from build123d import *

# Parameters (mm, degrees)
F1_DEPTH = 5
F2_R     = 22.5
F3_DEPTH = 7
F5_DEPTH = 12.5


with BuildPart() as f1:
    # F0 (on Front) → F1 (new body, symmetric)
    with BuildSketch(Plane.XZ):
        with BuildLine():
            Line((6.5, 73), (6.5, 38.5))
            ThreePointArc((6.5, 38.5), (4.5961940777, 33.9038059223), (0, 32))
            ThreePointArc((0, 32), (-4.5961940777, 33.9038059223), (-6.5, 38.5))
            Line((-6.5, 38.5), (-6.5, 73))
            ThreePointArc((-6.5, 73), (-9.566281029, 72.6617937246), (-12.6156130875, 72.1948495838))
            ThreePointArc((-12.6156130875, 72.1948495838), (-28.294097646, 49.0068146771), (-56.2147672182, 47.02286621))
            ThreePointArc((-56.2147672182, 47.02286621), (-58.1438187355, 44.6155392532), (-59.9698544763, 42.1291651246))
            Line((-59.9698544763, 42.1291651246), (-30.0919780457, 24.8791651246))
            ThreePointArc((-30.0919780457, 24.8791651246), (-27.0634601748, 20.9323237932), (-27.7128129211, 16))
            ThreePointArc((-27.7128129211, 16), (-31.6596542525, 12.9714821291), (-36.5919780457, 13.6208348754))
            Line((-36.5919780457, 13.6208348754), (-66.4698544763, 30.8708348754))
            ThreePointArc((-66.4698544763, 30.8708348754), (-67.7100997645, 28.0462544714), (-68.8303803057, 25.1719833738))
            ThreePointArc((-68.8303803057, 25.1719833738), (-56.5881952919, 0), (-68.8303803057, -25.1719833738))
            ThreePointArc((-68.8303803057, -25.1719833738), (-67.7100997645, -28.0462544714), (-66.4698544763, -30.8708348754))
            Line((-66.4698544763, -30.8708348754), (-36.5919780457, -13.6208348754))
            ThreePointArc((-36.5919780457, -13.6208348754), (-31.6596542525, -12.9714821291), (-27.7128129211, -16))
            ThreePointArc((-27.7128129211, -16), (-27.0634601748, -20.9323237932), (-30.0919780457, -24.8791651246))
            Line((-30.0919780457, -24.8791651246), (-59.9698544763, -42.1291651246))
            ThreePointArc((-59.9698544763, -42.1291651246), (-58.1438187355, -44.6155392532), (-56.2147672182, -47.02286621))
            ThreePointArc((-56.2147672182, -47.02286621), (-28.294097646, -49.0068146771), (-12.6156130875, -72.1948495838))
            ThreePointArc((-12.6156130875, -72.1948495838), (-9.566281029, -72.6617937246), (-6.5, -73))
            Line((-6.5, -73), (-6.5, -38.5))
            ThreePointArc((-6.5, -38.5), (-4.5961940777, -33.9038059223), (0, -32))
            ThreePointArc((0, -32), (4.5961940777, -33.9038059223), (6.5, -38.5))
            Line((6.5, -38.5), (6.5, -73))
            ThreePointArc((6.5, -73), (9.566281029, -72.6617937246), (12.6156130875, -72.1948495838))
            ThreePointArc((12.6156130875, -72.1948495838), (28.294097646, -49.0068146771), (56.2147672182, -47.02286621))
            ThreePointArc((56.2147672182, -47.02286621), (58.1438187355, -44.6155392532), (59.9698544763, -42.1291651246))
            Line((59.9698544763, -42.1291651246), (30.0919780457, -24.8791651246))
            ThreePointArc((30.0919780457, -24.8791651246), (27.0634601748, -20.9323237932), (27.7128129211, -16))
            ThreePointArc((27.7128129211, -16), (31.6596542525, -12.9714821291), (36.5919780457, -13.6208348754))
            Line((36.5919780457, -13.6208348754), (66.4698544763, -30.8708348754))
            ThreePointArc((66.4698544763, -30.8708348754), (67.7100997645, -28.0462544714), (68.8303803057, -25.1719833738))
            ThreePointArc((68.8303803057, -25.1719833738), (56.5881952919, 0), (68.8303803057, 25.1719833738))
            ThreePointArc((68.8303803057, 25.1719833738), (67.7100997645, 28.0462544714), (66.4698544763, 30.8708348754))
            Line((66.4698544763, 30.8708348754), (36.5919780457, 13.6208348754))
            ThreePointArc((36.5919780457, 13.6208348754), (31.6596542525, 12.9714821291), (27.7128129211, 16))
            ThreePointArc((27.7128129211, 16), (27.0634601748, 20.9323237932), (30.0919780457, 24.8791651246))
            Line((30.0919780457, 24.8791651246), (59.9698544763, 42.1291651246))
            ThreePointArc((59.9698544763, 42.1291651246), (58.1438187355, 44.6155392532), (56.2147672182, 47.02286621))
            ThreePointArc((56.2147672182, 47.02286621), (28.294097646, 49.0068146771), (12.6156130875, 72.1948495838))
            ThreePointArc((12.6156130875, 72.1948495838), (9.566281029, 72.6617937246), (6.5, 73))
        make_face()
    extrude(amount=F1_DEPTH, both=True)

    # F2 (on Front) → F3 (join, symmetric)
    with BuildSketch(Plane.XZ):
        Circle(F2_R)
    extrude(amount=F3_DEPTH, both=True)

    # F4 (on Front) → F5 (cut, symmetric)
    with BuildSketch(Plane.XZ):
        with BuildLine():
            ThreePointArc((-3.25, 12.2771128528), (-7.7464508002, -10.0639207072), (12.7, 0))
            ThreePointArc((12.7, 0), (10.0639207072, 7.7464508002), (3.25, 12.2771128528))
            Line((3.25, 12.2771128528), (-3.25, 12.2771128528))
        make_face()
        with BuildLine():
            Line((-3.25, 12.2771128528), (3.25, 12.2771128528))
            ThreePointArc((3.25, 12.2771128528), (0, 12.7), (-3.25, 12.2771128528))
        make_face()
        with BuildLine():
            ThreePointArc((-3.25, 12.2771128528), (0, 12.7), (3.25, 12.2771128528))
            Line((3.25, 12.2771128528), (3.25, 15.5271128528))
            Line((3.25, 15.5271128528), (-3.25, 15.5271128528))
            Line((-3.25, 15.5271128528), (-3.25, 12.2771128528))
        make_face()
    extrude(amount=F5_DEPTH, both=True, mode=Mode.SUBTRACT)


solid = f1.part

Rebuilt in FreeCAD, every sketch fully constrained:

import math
import FreeCAD as App
import Part
import Sketcher

V = App.Vector
Q = App.Units.Quantity

doc = App.newDocument("Part")
body = doc.addObject("PartDesign::Body", "Body")

# Sketch on XZ plane
sketch1 = body.newObject("Sketcher::SketchObject", "Sketch")
sketch1.AttachmentSupport = (doc.getObject("XZ_Plane"), [""])
sketch1.MapMode = "FlatFace"
sketch1.addGeometry(Part.LineSegment(V(6, 73, 0), V(6, 38, 0)), False)
sketch1.addGeometry(Part.ArcOfCircle(Part.Circle(V(0, 38, 0), V(0, 0, 1), 6), math.radians(-90), math.radians(0)), False)
sketch1.addGeometry(Part.ArcOfCircle(Part.Circle(V(0, 38, 0), V(0, 0, 1), 6), math.radians(180), math.radians(270)), False)
sketch1.addGeometry(Part.LineSegment(V(-6, 38, 0), V(-6, 73, 0)), False)
sketch1.addGeometry(Part.ArcOfCircle(Part.Circle(V(0, 0, 0), V(0, 0, 1), 73), math.radians(95.09), math.radians(99.91)), False)
sketch1.addGeometry(Part.ArcOfCircle(Part.Circle(V(-44, 77, 0), V(0, 0, 1), 32), math.radians(-112), math.radians(-8)), False)
sketch1.addGeometry(Part.ArcOfCircle(Part.Circle(V(0, 0, 0), V(0, 0, 1), 73), math.radians(140.09), math.radians(144.91)), False)
sketch1.addGeometry(Part.LineSegment(V(-60, 42, 0), V(-30, 25, 0)), False)
sketch1.addGeometry(Part.ArcOfCircle(Part.Circle(V(-33, 19, 0), V(0, 0, 1), 6), math.radians(-30), math.radians(60)), False)
sketch1.addGeometry(Part.ArcOfCircle(Part.Circle(V(-33, 19, 0), V(0, 0, 1), 6), math.radians(-120), math.radians(-30)), False)
sketch1.addGeometry(Part.LineSegment(V(-37, 14, 0), V(-66, 31, 0)), False)
sketch1.addGeometry(Part.ArcOfCircle(Part.Circle(V(0, 0, 0), V(0, 0, 1), 73), math.radians(155.09), math.radians(159.91)), False)
sketch1.addGeometry(Part.ArcOfCircle(Part.Circle(V(-89, 0, 0), V(0, 0, 1), 32), math.radians(-52), math.radians(52)), False)
sketch1.addGeometry(Part.ArcOfCircle(Part.Circle(V(0, 0, 0), V(0, 0, 1), 73), math.radians(-159.91), math.radians(-155.09)), False)
sketch1.addGeometry(Part.LineSegment(V(-66, -31, 0), V(-37, -14, 0)), False)
sketch1.addGeometry(Part.ArcOfCircle(Part.Circle(V(-33, -19, 0), V(0, 0, 1), 6), math.radians(30), math.radians(120)), False)
sketch1.addGeometry(Part.ArcOfCircle(Part.Circle(V(-33, -19, 0), V(0, 0, 1), 6), math.radians(-60), math.radians(30)), False)
sketch1.addGeometry(Part.LineSegment(V(-30, -25, 0), V(-60, -42, 0)), False)
sketch1.addGeometry(Part.ArcOfCircle(Part.Circle(V(0, 0, 0), V(0, 0, 1), 73), math.radians(-144.91), math.radians(-140.09)), False)
sketch1.addGeometry(Part.ArcOfCircle(Part.Circle(V(-44, -77, 0), V(0, 0, 1), 32), math.radians(8), math.radians(112)), False)
sketch1.addGeometry(Part.ArcOfCircle(Part.Circle(V(0, 0, 0), V(0, 0, 1), 73), math.radians(-99.91), math.radians(-95.09)), False)
sketch1.addGeometry(Part.LineSegment(V(-6, -73, 0), V(-6, -38, 0)), False)
sketch1.addGeometry(Part.ArcOfCircle(Part.Circle(V(0, -38, 0), V(0, 0, 1), 6), math.radians(90), math.radians(180)), False)
sketch1.addGeometry(Part.ArcOfCircle(Part.Circle(V(0, -38, 0), V(0, 0, 1), 6), math.radians(0), math.radians(90)), False)
sketch1.addGeometry(Part.LineSegment(V(6, -38, 0), V(6, -73, 0)), False)
sketch1.addGeometry(Part.ArcOfCircle(Part.Circle(V(0, 0, 0), V(0, 0, 1), 73), math.radians(-84.91), math.radians(-80.09)), False)
sketch1.addGeometry(Part.ArcOfCircle(Part.Circle(V(44, -77, 0), V(0, 0, 1), 32), math.radians(68), math.radians(172)), False)
sketch1.addGeometry(Part.ArcOfCircle(Part.Circle(V(0, 0, 0), V(0, 0, 1), 73), math.radians(-39.91), math.radians(-35.09)), False)
sketch1.addGeometry(Part.LineSegment(V(60, -42, 0), V(30, -25, 0)), False)
sketch1.addGeometry(Part.ArcOfCircle(Part.Circle(V(33, -19, 0), V(0, 0, 1), 6), math.radians(150), math.radians(240)), False)
sketch1.addGeometry(Part.ArcOfCircle(Part.Circle(V(33, -19, 0), V(0, 0, 1), 6), math.radians(60), math.radians(150)), False)
sketch1.addGeometry(Part.LineSegment(V(37, -14, 0), V(66, -31, 0)), False)
sketch1.addGeometry(Part.ArcOfCircle(Part.Circle(V(0, 0, 0), V(0, 0, 1), 73), math.radians(-24.91), math.radians(-20.09)), False)
sketch1.addGeometry(Part.ArcOfCircle(Part.Circle(V(89, 0, 0), V(0, 0, 1), 32), math.radians(128), math.radians(232)), False)
sketch1.addGeometry(Part.ArcOfCircle(Part.Circle(V(0, 0, 0), V(0, 0, 1), 73), math.radians(20.09), math.radians(24.91)), False)
sketch1.addGeometry(Part.LineSegment(V(66, 31, 0), V(37, 14, 0)), False)
sketch1.addGeometry(Part.ArcOfCircle(Part.Circle(V(33, 19, 0), V(0, 0, 1), 6), math.radians(-150), math.radians(-60)), False)
sketch1.addGeometry(Part.ArcOfCircle(Part.Circle(V(33, 19, 0), V(0, 0, 1), 6), math.radians(120), math.radians(210)), False)
sketch1.addGeometry(Part.LineSegment(V(30, 25, 0), V(60, 42, 0)), False)
sketch1.addGeometry(Part.ArcOfCircle(Part.Circle(V(0, 0, 0), V(0, 0, 1), 73), math.radians(35.09), math.radians(39.91)), False)
sketch1.addGeometry(Part.ArcOfCircle(Part.Circle(V(44, 77, 0), V(0, 0, 1), 32), math.radians(-172), math.radians(-68)), False)
sketch1.addGeometry(Part.ArcOfCircle(Part.Circle(V(0, 0, 0), V(0, 0, 1), 73), math.radians(80.09), math.radians(84.91)), False)
sketch1.addConstraint(Sketcher.Constraint("Tangent", 0, 2, 1, 2))
sketch1.addConstraint(Sketcher.Constraint("Tangent", 1, 1, 2, 2))
sketch1.addConstraint(Sketcher.Constraint("Tangent", 2, 1, 3, 1))
sketch1.addConstraint(Sketcher.Constraint("Coincident", 3, 2, 4, 1))
sketch1.addConstraint(Sketcher.Constraint("Coincident", 4, 2, 5, 2))
sketch1.addConstraint(Sketcher.Constraint("Coincident", 5, 1, 6, 1))
sketch1.addConstraint(Sketcher.Constraint("Coincident", 6, 2, 7, 1))
sketch1.addConstraint(Sketcher.Constraint("Tangent", 7, 2, 8, 2))
sketch1.addConstraint(Sketcher.Constraint("Tangent", 8, 1, 9, 2))
sketch1.addConstraint(Sketcher.Constraint("Tangent", 9, 1, 10, 1))
sketch1.addConstraint(Sketcher.Constraint("Coincident", 10, 2, 11, 1))
sketch1.addConstraint(Sketcher.Constraint("Coincident", 11, 2, 12, 2))
sketch1.addConstraint(Sketcher.Constraint("Coincident", 12, 1, 13, 1))
sketch1.addConstraint(Sketcher.Constraint("Coincident", 13, 2, 14, 1))
sketch1.addConstraint(Sketcher.Constraint("Tangent", 14, 2, 15, 2))
sketch1.addConstraint(Sketcher.Constraint("Tangent", 15, 1, 16, 2))
sketch1.addConstraint(Sketcher.Constraint("Tangent", 16, 1, 17, 1))
sketch1.addConstraint(Sketcher.Constraint("Coincident", 17, 2, 18, 1))
sketch1.addConstraint(Sketcher.Constraint("Coincident", 18, 2, 19, 2))
sketch1.addConstraint(Sketcher.Constraint("Coincident", 19, 1, 20, 1))
sketch1.addConstraint(Sketcher.Constraint("Coincident", 20, 2, 21, 1))
sketch1.addConstraint(Sketcher.Constraint("Tangent", 21, 2, 22, 2))
sketch1.addConstraint(Sketcher.Constraint("Tangent", 22, 1, 23, 2))
sketch1.addConstraint(Sketcher.Constraint("Tangent", 23, 1, 24, 1))
sketch1.addConstraint(Sketcher.Constraint("Coincident", 24, 2, 25, 1))
sketch1.addConstraint(Sketcher.Constraint("Coincident", 25, 2, 26, 2))
sketch1.addConstraint(Sketcher.Constraint("Coincident", 26, 1, 27, 1))
sketch1.addConstraint(Sketcher.Constraint("Coincident", 27, 2, 28, 1))
sketch1.addConstraint(Sketcher.Constraint("Tangent", 28, 2, 29, 2))
sketch1.addConstraint(Sketcher.Constraint("Tangent", 29, 1, 30, 2))
sketch1.addConstraint(Sketcher.Constraint("Tangent", 30, 1, 31, 1))
sketch1.addConstraint(Sketcher.Constraint("Coincident", 31, 2, 32, 1))
sketch1.addConstraint(Sketcher.Constraint("Coincident", 32, 2, 33, 2))
sketch1.addConstraint(Sketcher.Constraint("Coincident", 33, 1, 34, 1))
sketch1.addConstraint(Sketcher.Constraint("Coincident", 34, 2, 35, 1))
sketch1.addConstraint(Sketcher.Constraint("Tangent", 35, 2, 36, 2))
sketch1.addConstraint(Sketcher.Constraint("Tangent", 36, 1, 37, 2))
sketch1.addConstraint(Sketcher.Constraint("Tangent", 37, 1, 38, 1))
sketch1.addConstraint(Sketcher.Constraint("Coincident", 38, 2, 39, 1))
sketch1.addConstraint(Sketcher.Constraint("Coincident", 39, 2, 40, 2))
sketch1.addConstraint(Sketcher.Constraint("Coincident", 40, 1, 41, 1))
sketch1.addConstraint(Sketcher.Constraint("Coincident", 41, 2, 0, 1))
sketch1.addConstraint(Sketcher.Constraint("Vertical", 0))
sketch1.addConstraint(Sketcher.Constraint("Vertical", 3))
sketch1.addConstraint(Sketcher.Constraint("Vertical", 21))
sketch1.addConstraint(Sketcher.Constraint("Vertical", 24))
sketch1.addConstraint(Sketcher.Constraint("Coincident", 4, 3, -1, 1))
sketch1.addConstraint(Sketcher.Constraint("Coincident", 6, 3, -1, 1))
sketch1.addConstraint(Sketcher.Constraint("Coincident", 11, 3, -1, 1))
sketch1.addConstraint(Sketcher.Constraint("Coincident", 13, 3, -1, 1))
sketch1.addConstraint(Sketcher.Constraint("Coincident", 18, 3, -1, 1))
sketch1.addConstraint(Sketcher.Constraint("Coincident", 20, 3, -1, 1))
sketch1.addConstraint(Sketcher.Constraint("Coincident", 25, 3, -1, 1))
sketch1.addConstraint(Sketcher.Constraint("Coincident", 27, 3, -1, 1))
sketch1.addConstraint(Sketcher.Constraint("Coincident", 32, 3, -1, 1))
sketch1.addConstraint(Sketcher.Constraint("Coincident", 34, 3, -1, 1))
sketch1.addConstraint(Sketcher.Constraint("Coincident", 39, 3, -1, 1))
sketch1.addConstraint(Sketcher.Constraint("Coincident", 41, 3, -1, 1))
sketch1.addConstraint(Sketcher.Constraint("Equal", 1, 2))
sketch1.addConstraint(Sketcher.Constraint("Equal", 4, 6))
sketch1.addConstraint(Sketcher.Constraint("Equal", 2, 8))
sketch1.addConstraint(Sketcher.Constraint("Equal", 8, 9))
sketch1.addConstraint(Sketcher.Constraint("Equal", 6, 11))
sketch1.addConstraint(Sketcher.Constraint("Equal", 5, 12))
sketch1.addConstraint(Sketcher.Constraint("Equal", 11, 13))
sketch1.addConstraint(Sketcher.Constraint("Equal", 9, 15))
sketch1.addConstraint(Sketcher.Constraint("Equal", 15, 16))
sketch1.addConstraint(Sketcher.Constraint("Equal", 13, 18))
sketch1.addConstraint(Sketcher.Constraint("Equal", 12, 19))
sketch1.addConstraint(Sketcher.Constraint("Equal", 18, 20))
sketch1.addConstraint(Sketcher.Constraint("Equal", 16, 22))
sketch1.addConstraint(Sketcher.Constraint("Equal", 22, 23))
sketch1.addConstraint(Sketcher.Constraint("Equal", 20, 25))
sketch1.addConstraint(Sketcher.Constraint("Equal", 19, 26))
sketch1.addConstraint(Sketcher.Constraint("Equal", 25, 27))
sketch1.addConstraint(Sketcher.Constraint("Equal", 23, 29))
sketch1.addConstraint(Sketcher.Constraint("Equal", 29, 30))
sketch1.addConstraint(Sketcher.Constraint("Equal", 27, 32))
sketch1.addConstraint(Sketcher.Constraint("Equal", 26, 33))
sketch1.addConstraint(Sketcher.Constraint("Equal", 32, 34))
sketch1.addConstraint(Sketcher.Constraint("Equal", 30, 36))
sketch1.addConstraint(Sketcher.Constraint("Equal", 36, 37))
sketch1.addConstraint(Sketcher.Constraint("Equal", 34, 39))
sketch1.addConstraint(Sketcher.Constraint("Equal", 33, 40))
sketch1.addConstraint(Sketcher.Constraint("Equal", 39, 41))
sketch1.addConstraint(Sketcher.Constraint("Symmetric", 1, 3, 22, 3, -1, 1))
sketch1.addConstraint(Sketcher.Constraint("Symmetric", 5, 3, 26, 3, -1, 1))
sketch1.addConstraint(Sketcher.Constraint("Symmetric", 8, 3, 29, 3, -1, 1))
sketch1.addConstraint(Sketcher.Constraint("Symmetric", 12, 3, 33, 3, -1, 1))
sketch1.addConstraint(Sketcher.Constraint("Symmetric", 15, 3, 36, 3, -1, 1))
sketch1.addConstraint(Sketcher.Constraint("Symmetric", 19, 3, 40, 3, -1, 1))
sketch1.addConstraint(Sketcher.Constraint("Symmetric", 19, 3, 26, 3, -2))
sketch1.addConstraint(Sketcher.Constraint("Symmetric", 15, 3, 29, 3, -2))
sketch1.addConstraint(Sketcher.Constraint("PointOnObject", 1, 3, -2))
sketch1.addConstraint(Sketcher.Constraint("PointOnObject", 12, 3, -1))
sketch1.addConstraint(Sketcher.Constraint("PointOnObject", 1, 1, -2))
sketch1.addConstraint(Sketcher.Constraint("PointOnObject", 22, 1, -2))
sketch1.addConstraint(Sketcher.Constraint("Parallel", 7, 10))
sketch1.addConstraint(Sketcher.Constraint("Parallel", 14, 17))
sketch1.addConstraint(Sketcher.Constraint("Parallel", 10, 28))
sketch1.addConstraint(Sketcher.Constraint("Parallel", 28, 31))
sketch1.addConstraint(Sketcher.Constraint("Parallel", 17, 35))
sketch1.addConstraint(Sketcher.Constraint("Parallel", 35, 38))
sketch1.addConstraint(Sketcher.Constraint("Horizontal", 17, 2, 27, 2))
sketch1.addConstraint(Sketcher.Constraint("Horizontal", 15, 1, 29, 1))
sketch1.addConstraint(Sketcher.Constraint("Horizontal", 8, 1, 36, 1))
sketch1.addConstraint(Sketcher.Constraint("Vertical", 8, 1, 15, 1))
sketch1.addConstraint(Sketcher.Constraint("Equal", 7, 10))
sketch1.addConstraint(Sketcher.Constraint("Radius", 5, 32.0))
sketch1.addConstraint(Sketcher.Constraint("Radius", 1, 6.5))
sketch1.addConstraint(Sketcher.Constraint("Angle", 7, Q("-30 deg")))
sketch1.addConstraint(Sketcher.Constraint("DistanceY", 0, 2, 0, 1, 34.5))
sketch1.addConstraint(Sketcher.Constraint("DistanceY", -1, 1, 1, 1, 32.0))
sketch1.addConstraint(Sketcher.Constraint("DistanceY", -1, 1, 8, 1, 16.0))
sketch1.addConstraint(Sketcher.Constraint("Distance", 7, 34.5))
sketch1.addConstraint(Sketcher.Constraint("DistanceY", -1, 1, 4, 2, 72.19485))
sketch1.addConstraint(Sketcher.Constraint("DistanceX", 11, 2, -1, 1, 68.83038))
sketch1.addConstraint(Sketcher.Constraint("DistanceX", 5, 3, -1, 1, 44.294098))
pad1 = body.newObject("PartDesign::Pad", "Pad")
pad1.Profile = sketch1
pad1.Length = 10
pad1.Midplane = True

# Sketch on XZ plane
sketch2 = body.newObject("Sketcher::SketchObject", "Sketch001")
sketch2.AttachmentSupport = (doc.getObject("XZ_Plane"), [""])
sketch2.MapMode = "FlatFace"
sketch2.addGeometry(Part.Circle(V(0, 0, 0), V(0, 0, 1), 22), False)
sketch2.addConstraint(Sketcher.Constraint("Coincident", 0, 3, -1, 1))
sketch2.addConstraint(Sketcher.Constraint("Diameter", 0, 45.0))
pad2 = body.newObject("PartDesign::Pad", "Pad001")
pad2.Profile = sketch2
pad2.Length = 14
pad2.Midplane = True

# Sketch on XZ plane
sketch3 = body.newObject("Sketcher::SketchObject", "Sketch002")
sketch3.AttachmentSupport = (doc.getObject("XZ_Plane"), [""])
sketch3.MapMode = "FlatFace"
sketch3.addGeometry(Part.ArcOfCircle(Part.Circle(V(0, 0, 0), V(0, 0, 1), 12.7), math.radians(105), math.radians(360)), False)
sketch3.addGeometry(Part.ArcOfCircle(Part.Circle(V(0, 0, 0), V(0, 0, 1), 12.7), math.radians(0), math.radians(75)), False)
sketch3.addGeometry(Part.LineSegment(V(3.2, 12.3, 0), V(3.2, 15.5, 0)), False)
sketch3.addGeometry(Part.LineSegment(V(3.2, 15.5, 0), V(-3.2, 15.5, 0)), False)
sketch3.addGeometry(Part.LineSegment(V(-3.2, 15.5, 0), V(-3.2, 12.3, 0)), False)
sketch3.addConstraint(Sketcher.Constraint("Tangent", 0, 2, 1, 1))
sketch3.addConstraint(Sketcher.Constraint("Coincident", 1, 2, 2, 1))
sketch3.addConstraint(Sketcher.Constraint("Coincident", 2, 2, 3, 1))
sketch3.addConstraint(Sketcher.Constraint("Coincident", 3, 2, 4, 1))
sketch3.addConstraint(Sketcher.Constraint("Coincident", 4, 2, 0, 1))
sketch3.addConstraint(Sketcher.Constraint("Vertical", 2))
sketch3.addConstraint(Sketcher.Constraint("Horizontal", 3))
sketch3.addConstraint(Sketcher.Constraint("Vertical", 4))
sketch3.addConstraint(Sketcher.Constraint("Coincident", 0, 3, -1, 1))
sketch3.addConstraint(Sketcher.Constraint("Equal", 0, 1))
sketch3.addConstraint(Sketcher.Constraint("PointOnObject", 0, 2, -1))
sketch3.addConstraint(Sketcher.Constraint("Horizontal", 1, 2, 4, 2))
sketch3.addConstraint(Sketcher.Constraint("Radius", 0, 12.7))
sketch3.addConstraint(Sketcher.Constraint("DistanceX", 3, 2, 3, 1, 6.5))
sketch3.addConstraint(Sketcher.Constraint("DistanceY", 2, 1, 2, 2, 3.25))
pocket1 = body.newObject("PartDesign::Pocket", "Pocket")
pocket1.Profile = sketch3
pocket1.Length = 25
pocket1.Midplane = True

doc.recompute()
